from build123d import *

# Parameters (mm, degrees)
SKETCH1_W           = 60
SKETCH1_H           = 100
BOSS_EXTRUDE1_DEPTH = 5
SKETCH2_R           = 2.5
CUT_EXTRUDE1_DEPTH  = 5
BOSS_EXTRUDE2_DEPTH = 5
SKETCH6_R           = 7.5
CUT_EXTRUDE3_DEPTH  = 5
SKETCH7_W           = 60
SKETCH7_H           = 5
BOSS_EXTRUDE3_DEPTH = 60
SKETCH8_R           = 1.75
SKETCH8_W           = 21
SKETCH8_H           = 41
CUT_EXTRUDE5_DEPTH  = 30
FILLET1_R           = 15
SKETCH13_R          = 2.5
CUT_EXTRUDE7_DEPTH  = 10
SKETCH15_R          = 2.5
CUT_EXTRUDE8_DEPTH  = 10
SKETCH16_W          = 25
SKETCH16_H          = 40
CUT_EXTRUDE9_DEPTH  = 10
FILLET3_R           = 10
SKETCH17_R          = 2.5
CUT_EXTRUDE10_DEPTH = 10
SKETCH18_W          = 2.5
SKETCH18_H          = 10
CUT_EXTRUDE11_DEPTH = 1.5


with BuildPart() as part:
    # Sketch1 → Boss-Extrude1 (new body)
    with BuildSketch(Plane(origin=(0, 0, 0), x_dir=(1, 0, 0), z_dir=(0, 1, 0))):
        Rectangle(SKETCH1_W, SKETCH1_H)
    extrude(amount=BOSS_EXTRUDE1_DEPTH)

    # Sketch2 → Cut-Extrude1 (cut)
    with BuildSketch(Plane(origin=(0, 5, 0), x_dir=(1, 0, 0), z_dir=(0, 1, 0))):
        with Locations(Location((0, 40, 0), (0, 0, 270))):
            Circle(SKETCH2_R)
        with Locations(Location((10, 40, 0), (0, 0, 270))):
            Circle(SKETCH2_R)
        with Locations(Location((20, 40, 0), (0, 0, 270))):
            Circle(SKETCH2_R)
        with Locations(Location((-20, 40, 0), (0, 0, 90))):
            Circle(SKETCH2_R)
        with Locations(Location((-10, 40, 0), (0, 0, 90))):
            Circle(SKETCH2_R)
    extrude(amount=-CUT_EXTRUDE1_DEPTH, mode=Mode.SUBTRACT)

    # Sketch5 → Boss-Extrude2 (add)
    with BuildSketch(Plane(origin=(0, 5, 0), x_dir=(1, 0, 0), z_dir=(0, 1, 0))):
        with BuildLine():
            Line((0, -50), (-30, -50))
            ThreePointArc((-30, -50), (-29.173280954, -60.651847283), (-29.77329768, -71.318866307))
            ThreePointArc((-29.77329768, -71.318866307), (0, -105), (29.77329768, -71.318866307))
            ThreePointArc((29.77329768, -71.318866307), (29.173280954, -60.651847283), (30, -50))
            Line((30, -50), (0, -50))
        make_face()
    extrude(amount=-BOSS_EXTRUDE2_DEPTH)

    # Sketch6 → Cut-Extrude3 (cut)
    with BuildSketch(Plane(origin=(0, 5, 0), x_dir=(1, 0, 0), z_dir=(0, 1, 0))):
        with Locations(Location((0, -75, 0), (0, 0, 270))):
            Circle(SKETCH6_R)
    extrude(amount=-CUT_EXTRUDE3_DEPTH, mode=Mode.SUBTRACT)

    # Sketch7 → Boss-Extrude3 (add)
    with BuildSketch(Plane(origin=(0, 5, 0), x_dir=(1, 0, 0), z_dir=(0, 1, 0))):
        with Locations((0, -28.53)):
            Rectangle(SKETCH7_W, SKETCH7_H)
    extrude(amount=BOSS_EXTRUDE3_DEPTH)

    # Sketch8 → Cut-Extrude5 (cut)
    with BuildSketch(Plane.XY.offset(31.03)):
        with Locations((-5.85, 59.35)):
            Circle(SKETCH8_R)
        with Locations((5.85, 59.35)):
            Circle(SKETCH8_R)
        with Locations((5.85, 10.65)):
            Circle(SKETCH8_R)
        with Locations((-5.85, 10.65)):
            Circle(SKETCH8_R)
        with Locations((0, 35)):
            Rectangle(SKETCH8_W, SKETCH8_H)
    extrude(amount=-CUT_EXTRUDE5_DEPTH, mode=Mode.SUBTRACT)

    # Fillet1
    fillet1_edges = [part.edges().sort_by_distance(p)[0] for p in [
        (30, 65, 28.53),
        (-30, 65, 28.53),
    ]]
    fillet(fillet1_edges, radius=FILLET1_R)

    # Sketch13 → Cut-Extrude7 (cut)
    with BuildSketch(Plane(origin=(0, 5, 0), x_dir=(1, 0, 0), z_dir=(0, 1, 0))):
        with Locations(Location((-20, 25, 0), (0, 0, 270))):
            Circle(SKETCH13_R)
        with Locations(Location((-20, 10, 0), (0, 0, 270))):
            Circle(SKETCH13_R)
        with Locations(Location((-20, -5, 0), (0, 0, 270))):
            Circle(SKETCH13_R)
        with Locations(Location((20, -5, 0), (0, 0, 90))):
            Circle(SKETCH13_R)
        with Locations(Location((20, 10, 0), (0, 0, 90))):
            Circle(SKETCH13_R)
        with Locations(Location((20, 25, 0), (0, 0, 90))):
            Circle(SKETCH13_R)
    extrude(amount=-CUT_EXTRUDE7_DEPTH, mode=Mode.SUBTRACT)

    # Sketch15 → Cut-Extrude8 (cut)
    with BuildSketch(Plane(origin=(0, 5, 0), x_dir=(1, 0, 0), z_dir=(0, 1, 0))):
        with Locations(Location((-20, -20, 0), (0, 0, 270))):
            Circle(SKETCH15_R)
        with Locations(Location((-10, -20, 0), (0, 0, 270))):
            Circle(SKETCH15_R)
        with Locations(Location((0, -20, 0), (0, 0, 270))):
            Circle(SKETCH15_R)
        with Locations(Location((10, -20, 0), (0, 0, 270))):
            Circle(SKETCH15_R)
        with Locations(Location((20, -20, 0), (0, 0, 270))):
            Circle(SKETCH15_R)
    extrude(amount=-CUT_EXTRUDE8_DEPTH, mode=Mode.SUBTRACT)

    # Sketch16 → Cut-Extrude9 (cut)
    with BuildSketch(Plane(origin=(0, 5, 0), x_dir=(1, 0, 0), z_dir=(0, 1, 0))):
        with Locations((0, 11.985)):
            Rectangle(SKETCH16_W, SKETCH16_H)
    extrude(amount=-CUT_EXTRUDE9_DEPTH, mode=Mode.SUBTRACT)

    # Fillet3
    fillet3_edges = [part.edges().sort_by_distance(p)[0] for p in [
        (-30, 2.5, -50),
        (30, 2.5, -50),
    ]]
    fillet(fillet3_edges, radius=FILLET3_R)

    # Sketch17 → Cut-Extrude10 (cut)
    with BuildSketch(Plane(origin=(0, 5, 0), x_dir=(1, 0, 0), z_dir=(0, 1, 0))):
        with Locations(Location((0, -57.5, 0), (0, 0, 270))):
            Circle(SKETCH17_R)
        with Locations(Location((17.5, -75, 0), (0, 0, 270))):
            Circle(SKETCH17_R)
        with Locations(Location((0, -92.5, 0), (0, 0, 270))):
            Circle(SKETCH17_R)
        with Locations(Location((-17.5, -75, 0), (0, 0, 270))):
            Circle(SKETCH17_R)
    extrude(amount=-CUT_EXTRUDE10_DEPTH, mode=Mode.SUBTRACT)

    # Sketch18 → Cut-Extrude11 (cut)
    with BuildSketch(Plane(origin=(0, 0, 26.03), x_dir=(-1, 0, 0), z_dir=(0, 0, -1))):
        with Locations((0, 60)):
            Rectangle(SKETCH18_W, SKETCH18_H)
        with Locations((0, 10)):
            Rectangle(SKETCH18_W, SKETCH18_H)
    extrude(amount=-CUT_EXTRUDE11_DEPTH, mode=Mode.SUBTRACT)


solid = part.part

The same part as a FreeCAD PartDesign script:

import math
import FreeCAD as App
import Part
import Sketcher
from FreeCAD import Vector


def edges_at(feature, points):
    """Names of the edges that pass closest to the given points."""
    edges = feature.Shape.Edges
    near = lambda p: min(range(len(edges)), key=lambda i: edges[i].distToShape(Part.Vertex(*p))[0])
    return sorted({f"Edge{near(p) + 1}" for p in points})

doc = App.newDocument("Part")
body = doc.addObject("PartDesign::Body", "Body")

# Sketch on XZ plane
sketch1 = doc.addObject("Sketcher::SketchObject", "Sketch")
body.addObject(sketch1)
sketch1.AttachmentSupport = (doc.XZ_Plane, [""])
sketch1.MapMode = "FlatFace"
sketch1.addGeometry([
    Part.LineSegment(Vector(-30, -50, 0), Vector(-30, 50, 0)),
    Part.LineSegment(Vector(-30, 50, 0), Vector(30, 50, 0)),
    Part.LineSegment(Vector(30, 50, 0), Vector(30, -50, 0)),
    Part.LineSegment(Vector(30, -50, 0), Vector(-30, -50, 0)),
], False)
sketch1.addConstraint([
    Sketcher.Constraint("Coincident", 0, 2, 1, 1),
    Sketcher.Constraint("Coincident", 1, 2, 2, 1),
    Sketcher.Constraint("Coincident", 2, 2, 3, 1),
    Sketcher.Constraint("Coincident", 3, 2, 0, 1),
    Sketcher.Constraint("Vertical", 0),
    Sketcher.Constraint("Horizontal", 1),
    Sketcher.Constraint("Vertical", 2),
    Sketcher.Constraint("Horizontal", 3),
    Sketcher.Constraint("Symmetric", 0, 2, 2, 2, -1, 1),
    Sketcher.Constraint("DistanceX", 1, 1, 1, 2, 60.0),
    Sketcher.Constraint("DistanceY", 0, 1, 0, 2, 100.0),
])
pad1 = doc.addObject("PartDesign::Pad", "Pad")
body.addObject(pad1)
pad1.Profile = sketch1
pad1.Length = 5
pad1.Reversed = True

# Sketch on XZ plane
sketch2 = doc.addObject("Sketcher::SketchObject", "Sketch001")
body.addObject(sketch2)
sketch2.AttachmentSupport = (doc.XZ_Plane, [""])
sketch2.MapMode = "FlatFace"
sketch2.AttachmentOffset = App.Placement(Vector(0, 0, -5), App.Rotation())
sketch2.addGeometry([
    Part.Circle(Vector(0, -40, 0), Vector(0, 0, 1), 2.5),  # 0
    Part.Circle(Vector(10, -40, 0), Vector(0, 0, 1), 2.5),  # 1
    Part.Circle(Vector(20, -40, 0), Vector(0, 0, 1), 2.5),  # 2
    Part.Circle(Vector(-20, -40, 0), Vector(0, 0, 1), 2.5),  # 3
    Part.Circle(Vector(-10, -40, 0), Vector(0, 0, 1), 2.5),  # 4
], False)
sketch2.addConstraint([
    Sketcher.Constraint("Equal", 0, 1),
    Sketcher.Constraint("Equal", 1, 2),
    Sketcher.Constraint("Equal", 2, 3),
    Sketcher.Constraint("Equal", 3, 4),
    Sketcher.Constraint("Symmetric", 2, 3, 3, 3, -2),
    Sketcher.Constraint("Symmetric", 1, 3, 4, 3, -2),
    Sketcher.Constraint("PointOnObject", 0, 3, -2),
    Sketcher.Constraint("Horizontal", 0, 3, 1, 3),
    Sketcher.Constraint("Horizontal", 1, 3, 2, 3),
    Sketcher.Constraint("Diameter", 0, 5.0),
    Sketcher.Constraint("DistanceY", 0, 3, -1, 1, 40.0),
    Sketcher.Constraint("DistanceX", -1, 1, 1, 3, 10.0),
    Sketcher.Constraint("DistanceX", -1, 1, 2, 3, 20.0),
])
pocket1 = doc.addObject("PartDesign::Pocket", "Pocket")
body.addObject(pocket1)
pocket1.Profile = sketch2
pocket1.Length = 5
pocket1.Reversed = True

# Sketch on XZ plane
sketch3 = doc.addObject("Sketcher::SketchObject", "Sketch002")
body.addObject(sketch3)
sketch3.AttachmentSupport = (doc.XZ_Plane, [""])
sketch3.MapMode = "FlatFace"
sketch3.AttachmentOffset = App.Placement(Vector(0, 0, -5), App.Rotation())
sketch3.addGeometry([
    Part.ArcOfCircle(Part.Circle(Vector(-109, 62, 0), Vector(0, 0, 1), 80), math.radians(-8.27), math.radians(7.05)),
    Part.ArcOfCircle(Part.Circle(Vector(0, 75, 0), Vector(0, 0, 1), 30), math.radians(-7), math.radians(187)),
    Part.ArcOfCircle(Part.Circle(Vector(109, 62, 0), Vector(0, 0, 1), 80), math.radians(172.95), math.radians(188.27)),
    Part.LineSegment(Vector(30, 50, 0), Vector(-30, 50, 0)),
], False)
sketch3.addConstraint([
    Sketcher.Constraint("Tangent", 0, 2, 1, 2),
    Sketcher.Constraint("Tangent", 1, 1, 2, 1),
    Sketcher.Constraint("Coincident", 2, 2, 3, 1),
    Sketcher.Constraint("Coincident", 3, 2, 0, 1),
    Sketcher.Constraint("Horizontal", 3),
    Sketcher.Constraint("Equal", 0, 2),
    Sketcher.Constraint("Symmetric", 0, 3, 2, 3, -2),
    Sketcher.Constraint("Radius", 0, 80.0),
    Sketcher.Constraint("Radius", 1, 30.0),
    Sketcher.Constraint("DistanceX", 3, 2, 3, 1, 60.0),
    Sketcher.Constraint("DistanceY", -1, 1, 1, 3, 75.0),
    Sketcher.Constraint("DistanceY", -1, 1, 2, 2, 50.0),
])
pad2 = doc.addObject("PartDesign::Pad", "Pad001")
body.addObject(pad2)
pad2.Profile = sketch3
pad2.Length = 5

# Sketch on XZ plane
sketch4 = doc.addObject("Sketcher::SketchObject", "Sketch003")
body.addObject(sketch4)
sketch4.AttachmentSupport = (doc.XZ_Plane, [""])
sketch4.MapMode = "FlatFace"
sketch4.AttachmentOffset = App.Placement(Vector(0, 0, -5), App.Rotation())
sketch4.addGeometry(Part.Circle(Vector(0, 75, 0), Vector(0, 0, 1), 8), False)
sketch4.addConstraint([
    Sketcher.Constraint("PointOnObject", 0, 3, -2),
    Sketcher.Constraint("Diameter", 0, 15.0),
    Sketcher.Constraint("DistanceY", -1, 1, 0, 3, 75.0),
])
pocket2 = doc.addObject("PartDesign::Pocket", "Pocket001")
body.addObject(pocket2)
pocket2.Profile = sketch4
pocket2.Length = 5
pocket2.Reversed = True

# Sketch on XZ plane
sketch5 = doc.addObject("Sketcher::SketchObject", "Sketch004")
body.addObject(sketch5)
sketch5.AttachmentSupport = (doc.XZ_Plane, [""])
sketch5.MapMode = "FlatFace"
sketch5.AttachmentOffset = App.Placement(Vector(0, 0, -5), App.Rotation())
sketch5.addGeometry([
    Part.LineSegment(Vector(-30, 26, 0), Vector(-30, 31, 0)),
    Part.LineSegment(Vector(-30, 31, 0), Vector(30, 31, 0)),
    Part.LineSegment(Vector(30, 31, 0), Vector(30, 26, 0)),
    Part.LineSegment(Vector(30, 26, 0), Vector(-30, 26, 0)),
], False)
sketch5.addConstraint([
    Sketcher.Constraint("Coincident", 0, 2, 1, 1),
    Sketcher.Constraint("Coincident", 1, 2, 2, 1),
    Sketcher.Constraint("Coincident", 2, 2, 3, 1),
    Sketcher.Constraint("Coincident", 3, 2, 0, 1),
    Sketcher.Constraint("Vertical", 0),
    Sketcher.Constraint("Horizontal", 1),
    Sketcher.Constraint("Vertical", 2),
    Sketcher.Constraint("Horizontal", 3),
    Sketcher.Constraint("DistanceX", 1, 1, 1, 2, 60.0),
    Sketcher.Constraint("DistanceY", 0, 1, 0, 2, 5.0),
    Sketcher.Constraint("DistanceX", 0, 2, -1, 1, 30.0),
    Sketcher.Constraint("DistanceY", -1, 1, 0, 2, 31.03),
])
pad3 = doc.addObject("PartDesign::Pad", "Pad002")
body.addObject(pad3)
pad3.Profile = sketch5
pad3.Length = 60
pad3.Reversed = True

# Sketch on XY plane
sketch6 = doc.addObject("Sketcher::SketchObject", "Sketch005")
body.addObject(sketch6)
sketch6.AttachmentSupport = (doc.XY_Plane, [""])
sketch6.MapMode = "FlatFace"
sketch6.AttachmentOffset = App.Placement(Vector(0, 0, 31.03), App.Rotation())
sketch6.addGeometry([
    Part.Circle(Vector(-5.8, 59.4, 0), Vector(0, 0, 1), 1.8),  # 0
    Part.Circle(Vector(5.8, 59.4, 0), Vector(0, 0, 1), 1.8),  # 1
    Part.Circle(Vector(5.8, 10.7, 0), Vector(0, 0, 1), 1.8),  # 2
    Part.Circle(Vector(-5.8, 10.7, 0), Vector(0, 0, 1), 1.8),  # 3
    Part.LineSegment(Vector(-10.5, 55.5, 0), Vector(-10.5, 14.5, 0)),  # 4
    Part.LineSegment(Vector(-10.5, 14.5, 0), Vector(10.5, 14.5, 0)),  # 5
    Part.LineSegment(Vector(10.5, 14.5, 0), Vector(10.5, 55.5, 0)),  # 6
    Part.LineSegment(Vector(10.5, 55.5, 0), Vector(-10.5, 55.5, 0)),  # 7
], False)
sketch6.addConstraint([
    Sketcher.Constraint("Coincident", 4, 2, 5, 1),
    Sketcher.Constraint("Coincident", 5, 2, 6, 1),
    Sketcher.Constraint("Coincident", 6, 2, 7, 1),
    Sketcher.Constraint("Coincident", 7, 2, 4, 1),
    Sketcher.Constraint("Vertical", 4),
    Sketcher.Constraint("Horizontal", 5),
    Sketcher.Constraint("Vertical", 6),
    Sketcher.Constraint("Horizontal", 7),
    Sketcher.Constraint("Equal", 0, 1),
    Sketcher.Constraint("Equal", 1, 2),
    Sketcher.Constraint("Equal", 2, 3),
    Sketcher.Constraint("Symmetric", 0, 3, 1, 3, -2),
    Sketcher.Constraint("Symmetric", 2, 3, 3, 3, -2),
    Sketcher.Constraint("Vertical", 1, 3, 2, 3),
    Sketcher.Constraint("Diameter", 0, 3.5),
    Sketcher.Constraint("DistanceX", 5, 1, 5, 2, 21.0),
    Sketcher.Constraint("DistanceY", 4, 2, 4, 1, 41.0),
    Sketcher.Constraint("DistanceX", 4, 2, -1, 1, 10.5),
    Sketcher.Constraint("DistanceY", -1, 1, 4, 2, 14.5),
    Sketcher.Constraint("DistanceX", 0, 3, 1, 3, 11.7),
    Sketcher.Constraint("DistanceY", 2, 3, 1, 3, 48.7),
    Sketcher.Constraint("DistanceY", -1, 1, 0, 3, 59.35),
])
pocket3 = doc.addObject("PartDesign::Pocket", "Pocket002")
body.addObject(pocket3)
pocket3.Profile = sketch6
pocket3.Length = 30
doc.recompute()

fillet = doc.addObject("PartDesign::Fillet", "Fillet")
body.addObject(fillet)
fillet.Base = (pocket3, edges_at(pocket3, [(30, 65, 28.53), (-30, 65, 28.53)]))
fillet.Radius = 15

# Sketch on XZ plane
sketch7 = doc.addObject("Sketcher::SketchObject", "Sketch006")
body.addObject(sketch7)
sketch7.AttachmentSupport = (doc.XZ_Plane, [""])
sketch7.MapMode = "FlatFace"
sketch7.AttachmentOffset = App.Placement(Vector(0, 0, -5), App.Rotation())
sketch7.addGeometry([
    Part.Circle(Vector(-20, -25, 0), Vector(0, 0, 1), 2.5),  # 0
    Part.Circle(Vector(-20, -10, 0), Vector(0, 0, 1), 2.5),  # 1
    Part.Circle(Vector(-20, 5, 0), Vector(0, 0, 1), 2.5),  # 2
    Part.Circle(Vector(20, 5, 0), Vector(0, 0, 1), 2.5),  # 3
    Part.Circle(Vector(20, -10, 0), Vector(0, 0, 1), 2.5),  # 4
    Part.Circle(Vector(20, -25, 0), Vector(0, 0, 1), 2.5),  # 5
], False)
sketch7.addConstraint([
    Sketcher.Constraint("Equal", 0, 1),
    Sketcher.Constraint("Equal", 1, 2),
    Sketcher.Constraint("Equal", 2, 3),
    Sketcher.Constraint("Equal", 3, 4),
    Sketcher.Constraint("Equal", 4, 5),
    Sketcher.Constraint("Symmetric", 2, 3, 3, 3, -2),
    Sketcher.Constraint("Symmetric", 1, 3, 4, 3, -2),
    Sketcher.Constraint("Symmetric", 0, 3, 5, 3, -2),
    Sketcher.Constraint("Vertical", 0, 3, 1, 3),
    Sketcher.Constraint("Vertical", 1, 3, 2, 3),
    Sketcher.Constraint("Diameter", 0, 5.0),
    Sketcher.Constraint("DistanceX", 0, 3, -1, 1, 20.0),
    Sketcher.Constraint("DistanceY", 0, 3, -1, 1, 25.0),
    Sketcher.Constraint("DistanceY", 1, 3, -1, 1, 10.0),
    Sketcher.Constraint("DistanceY", -1, 1, 2, 3, 5.0),
])
pocket4 = doc.addObject("PartDesign::Pocket", "Pocket003")
body.addObject(pocket4)
pocket4.Profile = sketch7
pocket4.Length = 10
pocket4.Reversed = True

# Sketch on XZ plane
sketch8 = doc.addObject("Sketcher::SketchObject", "Sketch007")
body.addObject(sketch8)
sketch8.AttachmentSupport = (doc.XZ_Plane, [""])
sketch8.MapMode = "FlatFace"
sketch8.AttachmentOffset = App.Placement(Vector(0, 0, -5), App.Rotation())
sketch8.addGeometry([
    Part.Circle(Vector(-20, 20, 0), Vector(0, 0, 1), 2.5),  # 0
    Part.Circle(Vector(-10, 20, 0), Vector(0, 0, 1), 2.5),  # 1
    Part.Circle(Vector(0, 20, 0), Vector(0, 0, 1), 2.5),  # 2
    Part.Circle(Vector(10, 20, 0), Vector(0, 0, 1), 2.5),  # 3
    Part.Circle(Vector(20, 20, 0), Vector(0, 0, 1), 2.5),  # 4
], False)
sketch8.addConstraint([
    Sketcher.Constraint("Equal", 0, 1),
    Sketcher.Constraint("Equal", 1, 2),
    Sketcher.Constraint("Equal", 2, 3),
    Sketcher.Constraint("Equal", 3, 4),
    Sketcher.Constraint("Symmetric", 1, 3, 3, 3, -2),
    Sketcher.Constraint("Symmetric", 0, 3, 4, 3, -2),
    Sketcher.Constraint("PointOnObject", 2, 3, -2),
    Sketcher.Constraint("Horizontal", 0, 3, 1, 3),
    Sketcher.Constraint("Horizontal", 1, 3, 2, 3),
    Sketcher.Constraint("Diameter", 0, 5.0),
    Sketcher.Constraint("DistanceX", 0, 3, -1, 1, 20.0),
    Sketcher.Constraint("DistanceY", -1, 1, 0, 3, 20.0),
    Sketcher.Constraint("DistanceX", 1, 3, -1, 1, 10.0),
])
pocket5 = doc.addObject("PartDesign::Pocket", "Pocket004")
body.addObject(pocket5)
pocket5.Profile = sketch8
pocket5.Length = 10
pocket5.Reversed = True

# Sketch on XZ plane
sketch9 = doc.addObject("Sketcher::SketchObject", "Sketch008")
body.addObject(sketch9)
sketch9.AttachmentSupport = (doc.XZ_Plane, [""])
sketch9.MapMode = "FlatFace"
sketch9.AttachmentOffset = App.Placement(Vector(0, 0, -5), App.Rotation())
sketch9.addGeometry([
    Part.LineSegment(Vector(-12, -32, 0), Vector(-12, 8, 0)),
    Part.LineSegment(Vector(-12, 8, 0), Vector(12, 8, 0)),
    Part.LineSegment(Vector(12, 8, 0), Vector(12, -32, 0)),
    Part.LineSegment(Vector(12, -32, 0), Vector(-12, -32, 0)),
], False)
sketch9.addConstraint([
    Sketcher.Constraint("Coincident", 0, 2, 1, 1),
    Sketcher.Constraint("Coincident", 1, 2, 2, 1),
    Sketcher.Constraint("Coincident", 2, 2, 3, 1),
    Sketcher.Constraint("Coincident", 3, 2, 0, 1),
    Sketcher.Constraint("Vertical", 0),
    Sketcher.Constraint("Horizontal", 1),
    Sketcher.Constraint("Vertical", 2),
    Sketcher.Constraint("Horizontal", 3),
    Sketcher.Constraint("DistanceX", 1, 1, 1, 2, 25.0),
    Sketcher.Constraint("DistanceY", 0, 1, 0, 2, 40.0),
    Sketcher.Constraint("DistanceX", 0, 2, -1, 1, 12.5),
    Sketcher.Constraint("DistanceY", -1, 1, 0, 2, 8.015),
])
pocket6 = doc.addObject("PartDesign::Pocket", "Pocket005")
body.addObject(pocket6)
pocket6.Profile = sketch9
pocket6.Length = 10
pocket6.Reversed = True
doc.recompute()

fillet2 = doc.addObject("PartDesign::Fillet", "Fillet001")
body.addObject(fillet2)
fillet2.Base = (pocket6, edges_at(pocket6, [(-30, 2.5, -50), (30, 2.5, -50)]))
fillet2.Radius = 10

# Sketch on XZ plane
sketch10 = doc.addObject("Sketcher::SketchObject", "Sketch009")
body.addObject(sketch10)
sketch10.AttachmentSupport = (doc.XZ_Plane, [""])
sketch10.MapMode = "FlatFace"
sketch10.AttachmentOffset = App.Placement(Vector(0, 0, -5), App.Rotation())
sketch10.addGeometry([
    Part.Circle(Vector(0, 57.5, 0), Vector(0, 0, 1), 2.5),
    Part.Circle(Vector(17.5, 75, 0), Vector(0, 0, 1), 2.5),
    Part.Circle(Vector(0, 92.5, 0), Vector(0, 0, 1), 2.5),
    Part.Circle(Vector(-17.5, 75, 0), Vector(0, 0, 1), 2.5),
], False)
sketch10.addConstraint([
    Sketcher.Constraint("Equal", 0, 1),
    Sketcher.Constraint("Equal", 1, 2),
    Sketcher.Constraint("Equal", 2, 3),
    Sketcher.Constraint("Symmetric", 1, 3, 3, 3, -2),
    Sketcher.Constraint("PointOnObject", 0, 3, -2),
    Sketcher.Constraint("PointOnObject", 2, 3, -2),
    Sketcher.Constraint("Diameter", 0, 5.0),
    Sketcher.Constraint("DistanceY", -1, 1, 1, 3, 75.0),
    Sketcher.Constraint("DistanceY", 0, 3, 2, 3, 35.0),
    Sketcher.Constraint("DistanceX", 3, 3, 1, 3, 35.0),
    Sketcher.Constraint("DistanceY", -1, 1, 0, 3, 57.5),
])
pocket7 = doc.addObject("PartDesign::Pocket", "Pocket006")
body.addObject(pocket7)
pocket7.Profile = sketch10
pocket7.Length = 10
pocket7.Reversed = True

# Sketch on XY plane
sketch11 = doc.addObject("Sketcher::SketchObject", "Sketch010")
body.addObject(sketch11)
sketch11.AttachmentSupport = (doc.XY_Plane, [""])
sketch11.MapMode = "FlatFace"
sketch11.AttachmentOffset = App.Placement(Vector(0, 0, 26.03), App.Rotation())
sketch11.addGeometry([
    Part.LineSegment(Vector(1.2, 65, 0), Vector(1.2, 55, 0)),  # 0
    Part.LineSegment(Vector(1.2, 55, 0), Vector(-1.2, 55, 0)),  # 1
    Part.LineSegment(Vector(-1.2, 55, 0), Vector(-1.2, 65, 0)),  # 2
    Part.LineSegment(Vector(-1.2, 65, 0), Vector(1.2, 65, 0)),  # 3
    Part.LineSegment(Vector(1.2, 15, 0), Vector(1.2, 5, 0)),  # 4
    Part.LineSegment(Vector(1.2, 5, 0), Vector(-1.2, 5, 0)),  # 5
    Part.LineSegment(Vector(-1.2, 5, 0), Vector(-1.2, 15, 0)),  # 6
    Part.LineSegment(Vector(-1.2, 15, 0), Vector(1.2, 15, 0)),  # 7
], False)
sketch11.addConstraint([
    Sketcher.Constraint("Coincident", 0, 2, 1, 1),
    Sketcher.Constraint("Coincident", 1, 2, 2, 1),
    Sketcher.Constraint("Coincident", 2, 2, 3, 1),
    Sketcher.Constraint("Coincident", 3, 2, 0, 1),
    Sketcher.Constraint("Coincident", 4, 2, 5, 1),
    Sketcher.Constraint("Coincident", 5, 2, 6, 1),
    Sketcher.Constraint("Coincident", 6, 2, 7, 1),
    Sketcher.Constraint("Coincident", 7, 2, 4, 1),
    Sketcher.Constraint("Vertical", 0),
    Sketcher.Constraint("Horizontal", 1),
    Sketcher.Constraint("Vertical", 2),
    Sketcher.Constraint("Horizontal", 3),
    Sketcher.Constraint("Vertical", 4),
    Sketcher.Constraint("Horizontal", 5),
    Sketcher.Constraint("Vertical", 6),
    Sketcher.Constraint("Horizontal", 7),
    Sketcher.Constraint("Vertical", 3, 2, 4, 2),
    Sketcher.Constraint("Vertical", 2, 2, 5, 2),
    Sketcher.Constraint("Equal", 2, 4),
    Sketcher.Constraint("DistanceY", 0, 2, 0, 1, 10.0),
    Sketcher.Constraint("DistanceX", 1, 2, 1, 1, 2.5),
    Sketcher.Constraint("DistanceY", -1, 1, 0, 2, 55.0),
    Sketcher.Constraint("DistanceY", -1, 1, 4, 2, 5.0),
    Sketcher.Constraint("DistanceX", -1, 1, 0, 2, 1.25),
])
pocket8 = doc.addObject("PartDesign::Pocket", "Pocket007")
body.addObject(pocket8)
pocket8.Profile = sketch11
pocket8.Length = 1.5
pocket8.Reversed = True

doc.recompute()
